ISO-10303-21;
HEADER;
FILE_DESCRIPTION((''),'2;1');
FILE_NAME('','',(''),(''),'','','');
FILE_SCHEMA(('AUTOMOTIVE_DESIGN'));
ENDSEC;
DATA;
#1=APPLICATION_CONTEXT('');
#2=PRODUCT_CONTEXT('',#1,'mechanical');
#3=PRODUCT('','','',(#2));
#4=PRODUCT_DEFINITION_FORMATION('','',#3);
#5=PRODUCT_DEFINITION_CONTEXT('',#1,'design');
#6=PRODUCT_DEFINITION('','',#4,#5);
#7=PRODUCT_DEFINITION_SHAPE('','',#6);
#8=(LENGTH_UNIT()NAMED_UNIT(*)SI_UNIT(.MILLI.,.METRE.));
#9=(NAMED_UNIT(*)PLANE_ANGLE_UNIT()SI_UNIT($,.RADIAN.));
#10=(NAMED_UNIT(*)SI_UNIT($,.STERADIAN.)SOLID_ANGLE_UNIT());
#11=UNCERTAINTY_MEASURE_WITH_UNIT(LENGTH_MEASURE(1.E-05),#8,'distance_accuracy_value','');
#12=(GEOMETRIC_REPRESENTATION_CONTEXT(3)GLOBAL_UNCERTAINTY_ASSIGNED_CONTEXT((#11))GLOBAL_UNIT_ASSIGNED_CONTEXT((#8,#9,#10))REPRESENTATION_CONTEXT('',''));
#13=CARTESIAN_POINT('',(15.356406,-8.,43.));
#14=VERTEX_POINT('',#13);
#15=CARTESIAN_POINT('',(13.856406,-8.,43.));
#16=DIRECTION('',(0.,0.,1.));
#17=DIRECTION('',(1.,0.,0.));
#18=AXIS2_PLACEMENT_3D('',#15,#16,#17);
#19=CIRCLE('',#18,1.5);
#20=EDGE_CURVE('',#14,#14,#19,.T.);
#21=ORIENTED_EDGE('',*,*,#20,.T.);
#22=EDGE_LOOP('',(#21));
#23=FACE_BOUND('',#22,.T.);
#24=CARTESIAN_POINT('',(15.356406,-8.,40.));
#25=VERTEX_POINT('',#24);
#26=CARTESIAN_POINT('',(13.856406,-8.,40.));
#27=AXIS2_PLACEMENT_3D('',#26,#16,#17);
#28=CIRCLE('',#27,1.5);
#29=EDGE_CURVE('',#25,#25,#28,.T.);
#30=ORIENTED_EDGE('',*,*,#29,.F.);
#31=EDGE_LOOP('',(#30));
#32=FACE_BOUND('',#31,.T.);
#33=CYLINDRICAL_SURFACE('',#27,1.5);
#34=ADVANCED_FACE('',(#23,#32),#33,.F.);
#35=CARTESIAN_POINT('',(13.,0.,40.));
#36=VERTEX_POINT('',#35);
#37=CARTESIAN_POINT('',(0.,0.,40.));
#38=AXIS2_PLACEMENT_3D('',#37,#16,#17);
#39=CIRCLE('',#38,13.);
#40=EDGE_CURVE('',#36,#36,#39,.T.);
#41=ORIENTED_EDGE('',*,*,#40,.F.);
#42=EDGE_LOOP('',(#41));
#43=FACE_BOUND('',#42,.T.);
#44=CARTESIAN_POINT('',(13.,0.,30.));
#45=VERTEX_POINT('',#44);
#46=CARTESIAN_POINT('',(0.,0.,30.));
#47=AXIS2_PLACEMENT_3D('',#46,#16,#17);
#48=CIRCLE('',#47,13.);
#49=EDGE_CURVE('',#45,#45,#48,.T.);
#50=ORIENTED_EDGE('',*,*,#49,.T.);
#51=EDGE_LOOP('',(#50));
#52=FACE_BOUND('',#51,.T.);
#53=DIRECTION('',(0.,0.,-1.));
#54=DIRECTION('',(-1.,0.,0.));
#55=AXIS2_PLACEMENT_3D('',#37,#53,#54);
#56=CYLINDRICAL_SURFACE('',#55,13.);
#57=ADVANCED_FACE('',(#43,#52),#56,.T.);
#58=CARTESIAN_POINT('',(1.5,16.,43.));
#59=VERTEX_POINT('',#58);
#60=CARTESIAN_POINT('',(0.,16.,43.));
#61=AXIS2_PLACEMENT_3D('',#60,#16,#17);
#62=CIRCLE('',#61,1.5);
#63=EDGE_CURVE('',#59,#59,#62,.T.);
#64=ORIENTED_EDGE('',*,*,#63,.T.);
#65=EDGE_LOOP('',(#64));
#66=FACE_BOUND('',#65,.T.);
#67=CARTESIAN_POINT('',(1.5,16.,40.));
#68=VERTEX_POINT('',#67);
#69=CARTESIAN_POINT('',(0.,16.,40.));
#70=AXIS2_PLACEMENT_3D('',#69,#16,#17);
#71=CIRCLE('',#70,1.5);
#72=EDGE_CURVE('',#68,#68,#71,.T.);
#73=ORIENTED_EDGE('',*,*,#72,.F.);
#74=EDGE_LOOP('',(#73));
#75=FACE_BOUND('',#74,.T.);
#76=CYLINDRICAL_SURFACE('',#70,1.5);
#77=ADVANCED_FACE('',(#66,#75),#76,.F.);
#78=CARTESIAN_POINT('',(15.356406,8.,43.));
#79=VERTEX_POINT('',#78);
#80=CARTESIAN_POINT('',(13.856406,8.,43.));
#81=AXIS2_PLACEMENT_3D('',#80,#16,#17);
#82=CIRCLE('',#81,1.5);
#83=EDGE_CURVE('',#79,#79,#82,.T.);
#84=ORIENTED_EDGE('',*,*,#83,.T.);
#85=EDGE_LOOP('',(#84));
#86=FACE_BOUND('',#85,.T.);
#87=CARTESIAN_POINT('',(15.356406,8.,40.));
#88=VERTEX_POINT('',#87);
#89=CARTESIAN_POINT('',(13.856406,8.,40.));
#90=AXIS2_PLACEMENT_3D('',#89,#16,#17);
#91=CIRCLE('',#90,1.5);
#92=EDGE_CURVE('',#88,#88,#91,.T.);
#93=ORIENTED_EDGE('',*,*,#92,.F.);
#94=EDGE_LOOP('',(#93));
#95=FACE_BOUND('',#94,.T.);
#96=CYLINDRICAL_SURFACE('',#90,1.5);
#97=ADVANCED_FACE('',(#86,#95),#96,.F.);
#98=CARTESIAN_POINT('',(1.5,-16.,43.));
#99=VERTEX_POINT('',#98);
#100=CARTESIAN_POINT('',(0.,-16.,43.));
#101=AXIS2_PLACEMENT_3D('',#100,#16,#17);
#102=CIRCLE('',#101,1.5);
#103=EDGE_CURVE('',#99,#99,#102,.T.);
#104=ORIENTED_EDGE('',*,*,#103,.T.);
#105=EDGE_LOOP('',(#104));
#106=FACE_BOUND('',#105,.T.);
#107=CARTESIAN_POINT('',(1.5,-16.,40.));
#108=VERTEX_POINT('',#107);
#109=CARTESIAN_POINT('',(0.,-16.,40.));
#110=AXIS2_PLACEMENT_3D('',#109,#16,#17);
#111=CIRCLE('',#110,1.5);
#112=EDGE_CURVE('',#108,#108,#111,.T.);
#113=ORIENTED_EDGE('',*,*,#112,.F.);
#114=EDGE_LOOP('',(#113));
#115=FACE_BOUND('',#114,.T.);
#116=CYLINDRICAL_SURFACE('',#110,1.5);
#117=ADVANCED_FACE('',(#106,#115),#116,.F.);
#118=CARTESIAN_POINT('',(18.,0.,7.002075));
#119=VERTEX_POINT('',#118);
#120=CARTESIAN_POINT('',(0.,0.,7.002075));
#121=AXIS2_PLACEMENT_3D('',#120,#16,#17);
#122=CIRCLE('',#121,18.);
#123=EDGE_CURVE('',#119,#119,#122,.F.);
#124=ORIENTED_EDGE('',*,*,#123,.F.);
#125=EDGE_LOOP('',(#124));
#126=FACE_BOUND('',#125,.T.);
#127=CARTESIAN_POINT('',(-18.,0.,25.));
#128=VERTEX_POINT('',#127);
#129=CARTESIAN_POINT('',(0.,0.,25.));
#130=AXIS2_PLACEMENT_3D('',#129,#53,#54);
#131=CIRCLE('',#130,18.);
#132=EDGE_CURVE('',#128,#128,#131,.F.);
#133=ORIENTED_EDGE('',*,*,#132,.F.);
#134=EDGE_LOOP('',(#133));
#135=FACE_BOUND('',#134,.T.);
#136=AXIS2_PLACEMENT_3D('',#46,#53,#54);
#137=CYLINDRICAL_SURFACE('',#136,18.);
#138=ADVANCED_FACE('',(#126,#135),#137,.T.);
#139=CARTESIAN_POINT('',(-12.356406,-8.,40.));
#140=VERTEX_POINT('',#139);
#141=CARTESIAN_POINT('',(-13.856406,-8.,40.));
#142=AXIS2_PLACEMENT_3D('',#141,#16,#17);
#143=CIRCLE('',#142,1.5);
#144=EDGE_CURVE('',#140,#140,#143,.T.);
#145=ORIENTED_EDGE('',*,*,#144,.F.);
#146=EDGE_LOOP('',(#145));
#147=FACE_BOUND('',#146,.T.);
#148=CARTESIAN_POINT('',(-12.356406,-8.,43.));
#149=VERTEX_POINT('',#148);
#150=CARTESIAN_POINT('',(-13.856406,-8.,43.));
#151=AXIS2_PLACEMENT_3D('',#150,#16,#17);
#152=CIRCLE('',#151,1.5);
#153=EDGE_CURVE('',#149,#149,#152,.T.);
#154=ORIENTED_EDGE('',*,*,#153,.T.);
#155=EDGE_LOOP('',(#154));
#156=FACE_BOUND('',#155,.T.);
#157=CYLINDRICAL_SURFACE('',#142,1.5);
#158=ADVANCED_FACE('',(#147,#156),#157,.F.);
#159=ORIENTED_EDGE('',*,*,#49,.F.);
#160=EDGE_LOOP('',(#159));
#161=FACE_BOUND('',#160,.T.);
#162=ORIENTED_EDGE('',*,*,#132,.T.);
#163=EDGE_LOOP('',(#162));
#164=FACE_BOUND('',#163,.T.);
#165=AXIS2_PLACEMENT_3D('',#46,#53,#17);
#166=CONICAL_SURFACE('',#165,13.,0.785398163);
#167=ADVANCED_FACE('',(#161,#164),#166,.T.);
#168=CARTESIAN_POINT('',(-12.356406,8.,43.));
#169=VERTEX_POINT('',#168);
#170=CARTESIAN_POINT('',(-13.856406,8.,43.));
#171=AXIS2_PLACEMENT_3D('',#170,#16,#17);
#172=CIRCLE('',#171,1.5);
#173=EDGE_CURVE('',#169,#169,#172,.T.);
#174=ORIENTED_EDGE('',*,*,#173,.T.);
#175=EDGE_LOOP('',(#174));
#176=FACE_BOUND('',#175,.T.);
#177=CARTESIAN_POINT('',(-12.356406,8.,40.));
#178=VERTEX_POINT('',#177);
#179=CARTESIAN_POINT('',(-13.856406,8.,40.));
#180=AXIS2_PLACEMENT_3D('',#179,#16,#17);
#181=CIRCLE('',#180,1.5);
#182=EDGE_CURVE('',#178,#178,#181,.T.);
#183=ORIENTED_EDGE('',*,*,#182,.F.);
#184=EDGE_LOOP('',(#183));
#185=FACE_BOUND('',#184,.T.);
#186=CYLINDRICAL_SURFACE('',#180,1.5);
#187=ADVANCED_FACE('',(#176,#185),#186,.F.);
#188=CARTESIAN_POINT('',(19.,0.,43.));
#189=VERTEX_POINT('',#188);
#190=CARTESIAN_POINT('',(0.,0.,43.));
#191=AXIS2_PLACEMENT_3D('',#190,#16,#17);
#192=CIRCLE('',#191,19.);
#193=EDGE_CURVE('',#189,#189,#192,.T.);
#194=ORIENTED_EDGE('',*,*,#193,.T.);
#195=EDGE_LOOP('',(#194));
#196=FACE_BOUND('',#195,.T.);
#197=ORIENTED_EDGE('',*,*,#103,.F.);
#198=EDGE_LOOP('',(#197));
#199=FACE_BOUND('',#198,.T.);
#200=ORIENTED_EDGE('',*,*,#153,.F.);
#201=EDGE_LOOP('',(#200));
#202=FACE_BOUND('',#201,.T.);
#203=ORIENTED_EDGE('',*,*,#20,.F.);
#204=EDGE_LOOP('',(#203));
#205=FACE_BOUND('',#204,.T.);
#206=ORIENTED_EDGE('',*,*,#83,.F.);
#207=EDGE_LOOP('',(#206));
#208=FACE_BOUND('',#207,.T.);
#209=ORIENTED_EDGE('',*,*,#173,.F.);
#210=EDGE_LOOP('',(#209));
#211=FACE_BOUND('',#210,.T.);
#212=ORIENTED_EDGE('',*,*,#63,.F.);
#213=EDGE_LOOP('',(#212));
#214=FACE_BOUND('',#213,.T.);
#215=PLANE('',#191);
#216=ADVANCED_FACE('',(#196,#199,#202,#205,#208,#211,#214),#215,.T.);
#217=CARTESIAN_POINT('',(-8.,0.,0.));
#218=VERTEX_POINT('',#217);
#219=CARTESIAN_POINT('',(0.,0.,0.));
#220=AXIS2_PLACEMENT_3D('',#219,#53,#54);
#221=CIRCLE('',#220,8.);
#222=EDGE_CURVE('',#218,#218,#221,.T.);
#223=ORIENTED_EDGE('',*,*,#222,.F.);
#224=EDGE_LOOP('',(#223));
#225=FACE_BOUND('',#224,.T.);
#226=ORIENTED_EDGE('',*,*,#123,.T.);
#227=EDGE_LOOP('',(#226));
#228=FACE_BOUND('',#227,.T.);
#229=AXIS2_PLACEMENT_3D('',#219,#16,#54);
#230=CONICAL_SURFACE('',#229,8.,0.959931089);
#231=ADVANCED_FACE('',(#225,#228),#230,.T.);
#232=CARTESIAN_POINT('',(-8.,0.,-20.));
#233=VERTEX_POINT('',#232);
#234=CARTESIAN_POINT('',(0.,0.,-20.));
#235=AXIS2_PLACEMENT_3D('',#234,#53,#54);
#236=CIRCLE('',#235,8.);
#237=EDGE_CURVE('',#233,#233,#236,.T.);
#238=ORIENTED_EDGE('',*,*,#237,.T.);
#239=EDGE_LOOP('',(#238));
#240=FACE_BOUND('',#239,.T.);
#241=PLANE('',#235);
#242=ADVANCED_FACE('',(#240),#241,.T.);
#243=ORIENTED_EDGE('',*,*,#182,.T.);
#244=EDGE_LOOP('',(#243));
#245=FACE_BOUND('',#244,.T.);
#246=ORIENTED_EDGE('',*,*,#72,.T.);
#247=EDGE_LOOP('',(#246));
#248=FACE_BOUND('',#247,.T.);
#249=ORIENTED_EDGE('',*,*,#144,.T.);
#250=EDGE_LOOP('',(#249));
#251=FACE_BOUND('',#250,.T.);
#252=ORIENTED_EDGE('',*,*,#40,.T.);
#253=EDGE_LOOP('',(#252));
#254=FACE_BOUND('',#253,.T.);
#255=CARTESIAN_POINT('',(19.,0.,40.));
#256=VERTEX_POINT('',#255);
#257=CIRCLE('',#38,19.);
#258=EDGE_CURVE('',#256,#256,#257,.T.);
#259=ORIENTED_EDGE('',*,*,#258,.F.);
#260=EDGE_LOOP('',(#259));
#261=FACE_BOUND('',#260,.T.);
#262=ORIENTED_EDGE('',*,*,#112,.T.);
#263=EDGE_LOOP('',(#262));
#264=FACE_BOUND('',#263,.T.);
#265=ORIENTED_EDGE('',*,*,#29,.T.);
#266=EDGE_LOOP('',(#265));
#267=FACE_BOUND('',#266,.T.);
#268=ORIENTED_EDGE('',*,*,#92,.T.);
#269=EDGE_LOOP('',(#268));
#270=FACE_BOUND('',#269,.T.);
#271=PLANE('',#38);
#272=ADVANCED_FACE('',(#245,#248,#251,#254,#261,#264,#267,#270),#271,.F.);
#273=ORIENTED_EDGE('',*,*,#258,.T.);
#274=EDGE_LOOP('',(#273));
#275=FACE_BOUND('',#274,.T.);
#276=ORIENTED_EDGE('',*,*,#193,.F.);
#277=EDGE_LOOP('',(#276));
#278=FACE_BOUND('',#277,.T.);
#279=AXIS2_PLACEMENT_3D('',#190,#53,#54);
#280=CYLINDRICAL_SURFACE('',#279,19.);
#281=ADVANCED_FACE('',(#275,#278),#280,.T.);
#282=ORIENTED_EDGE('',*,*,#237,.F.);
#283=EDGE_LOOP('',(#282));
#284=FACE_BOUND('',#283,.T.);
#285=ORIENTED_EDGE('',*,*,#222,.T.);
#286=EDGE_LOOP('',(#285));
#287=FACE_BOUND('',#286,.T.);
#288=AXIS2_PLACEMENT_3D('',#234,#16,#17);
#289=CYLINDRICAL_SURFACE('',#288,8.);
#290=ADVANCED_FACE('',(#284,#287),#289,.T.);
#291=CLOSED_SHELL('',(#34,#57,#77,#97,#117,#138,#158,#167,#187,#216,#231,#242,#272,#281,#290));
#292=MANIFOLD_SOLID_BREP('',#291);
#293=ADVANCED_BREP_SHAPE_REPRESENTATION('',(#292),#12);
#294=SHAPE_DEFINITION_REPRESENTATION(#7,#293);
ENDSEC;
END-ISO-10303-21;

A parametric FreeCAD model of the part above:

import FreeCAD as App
import Part
import Sketcher
from FreeCAD import Vector


def faces_at(feature, points):
    """Names of the faces that lie closest to the given points."""
    faces = feature.Shape.Faces
    near = lambda p: min(range(len(faces)), key=lambda i: faces[i].distToShape(Part.Vertex(*p))[0])
    return sorted({f"Face{near(p) + 1}" for p in points})

doc = App.newDocument("Part")
body = doc.addObject("PartDesign::Body", "Body")

# Sketch on XY plane
sketch1 = body.newObject("Sketcher::SketchObject", "Sketch")
sketch1.AttachmentSupport = (doc.getObject("XY_Plane"), [""])
sketch1.MapMode = "FlatFace"
sketch1.addGeometry(Part.Circle(Vector(0, 0, 0), Vector(0, 0, 1), 18), False)
sketch1.addConstraint([
    Sketcher.Constraint("Coincident", 0, 3, -1, 1),
    Sketcher.Constraint("Diameter", 0, 36.0),
])
pad1 = body.newObject("PartDesign::Pad", "Pad")
pad1.Profile = sketch1
pad1.Length = 30

# Sketch on XY plane
sketch2 = body.newObject("Sketcher::SketchObject", "Sketch001")
sketch2.AttachmentSupport = (doc.getObject("XY_Plane"), [""])
sketch2.MapMode = "FlatFace"
sketch2.AttachmentOffset = App.Placement(Vector(0, 0, 30), App.Rotation())
sketch2.addGeometry(Part.Circle(Vector(0, 0, 0), Vector(0, 0, 1), 13), False)
sketch2.addConstraint([
    Sketcher.Constraint("Coincident", 0, 3, -1, 1),
    Sketcher.Constraint("Diameter", 0, 26.0),
])
pad2 = body.newObject("PartDesign::Pad", "Pad001")
pad2.Profile = sketch2
pad2.Length = 10

# Sketch on XY plane
sketch3 = body.newObject("Sketcher::SketchObject", "Sketch002")
sketch3.AttachmentSupport = (doc.getObject("XY_Plane"), [""])
sketch3.MapMode = "FlatFace"
sketch3.addGeometry(Part.Circle(Vector(0, 0, 0), Vector(0, 0, 1), 8), False)
sketch3.addConstraint([
    Sketcher.Constraint("Coincident", 0, 3, -1, 1),
    Sketcher.Constraint("Diameter", 0, 16.0),
])
pad3 = body.newObject("PartDesign::Pad", "Pad002")
pad3.Profile = sketch3
pad3.Length = 20
pad3.Reversed = True
body2 = doc.addObject("PartDesign::Body", "Body001")

# Sketch on XY plane
sketch4 = body2.newObject("Sketcher::SketchObject", "Sketch003")
sketch4.AttachmentSupport = (doc.getObject("XY_Plane001"), [""])
sketch4.MapMode = "FlatFace"
sketch4.AttachmentOffset = App.Placement(Vector(0, 0, 30), App.Rotation())
sketch4.addGeometry([
    Part.LineSegment(Vector(-34.869, 34.869, 0), Vector(-34.869, -34.869, 0)),  # 0
    Part.LineSegment(Vector(-34.869, -34.869, 0), Vector(34.869, -34.869, 0)),  # 1
    Part.LineSegment(Vector(34.869, -34.869, 0), Vector(34.869, 34.869, 0)),  # 2
    Part.LineSegment(Vector(34.869, 34.869, 0), Vector(-34.869, 34.869, 0)),  # 3
    Part.Circle(Vector(0, 0, 0), Vector(0, 0, 1), 13),  # 4
], False)
sketch4.addConstraint([
    Sketcher.Constraint("Coincident", 0, 2, 1, 1),
    Sketcher.Constraint("Coincident", 1, 2, 2, 1),
    Sketcher.Constraint("Coincident", 2, 2, 3, 1),
    Sketcher.Constraint("Coincident", 3, 2, 0, 1),
    Sketcher.Constraint("Vertical", 0),
    Sketcher.Constraint("Horizontal", 1),
    Sketcher.Constraint("Vertical", 2),
    Sketcher.Constraint("Horizontal", 3),
    Sketcher.Constraint("Coincident", 4, 3, -1, 1),
    Sketcher.Constraint("Symmetric", 0, 2, 2, 2, -1, 1),
    Sketcher.Constraint("Equal", 3, 0),
    Sketcher.Constraint("Diameter", 4, 26.0),
    Sketcher.Constraint("DistanceX", 1, 1, 1, 2, 69.738),
])
pad4 = body2.newObject("PartDesign::Pad", "Pad003")
pad4.Profile = sketch4
pad4.Length = 8
pad4.Reversed = True
doc.recompute()

datumplane = body2.newObject("PartDesign::Plane", "DatumPlane")
datumplane.AttachmentSupport = (doc.getObject("XY_Plane001"), [""])
datumplane.MapMode = "FlatFace"
datumplane.AttachmentOffset = App.Placement(Vector(0, 0, 30), App.Rotation())
draft = body2.newObject("PartDesign::Draft", "Draft")
draft.Base = (pad4, faces_at(pad4, [
    (0, -34.869, 26),
    (34.869, 0, 26),
    (0, 34.869, 26),
    (-34.869, 0, 26),
    (-13, 0, 26),
]))
draft.NeutralPlane = (datumplane, [""])
draft.Angle = 45
draft.Reversed = True
doc.recompute()

boolean = body.newObject("PartDesign::Boolean", "Boolean")
boolean.Type = "Cut"
boolean.addObjects([body2])
body3 = doc.addObject("PartDesign::Body", "Body002")

# Sketch on XY plane
sketch5 = body3.newObject("Sketcher::SketchObject", "Sketch004")
sketch5.AttachmentSupport = (doc.getObject("XY_Plane002"), [""])
sketch5.MapMode = "FlatFace"
sketch5.addGeometry([
    Part.LineSegment(Vector(38.294, 38.294, 0), Vector(38.294, -38.294, 0)),  # 0
    Part.LineSegment(Vector(38.294, -38.294, 0), Vector(-38.294, -38.294, 0)),  # 1
    Part.LineSegment(Vector(-38.294, -38.294, 0), Vector(-38.294, 38.294, 0)),  # 2
    Part.LineSegment(Vector(-38.294, 38.294, 0), Vector(38.294, 38.294, 0)),  # 3
    Part.Circle(Vector(0, 0, 0), Vector(0, 0, 1), 8),  # 4
], False)
sketch5.addConstraint([
    Sketcher.Constraint("Coincident", 0, 2, 1, 1),
    Sketcher.Constraint("Coincident", 1, 2, 2, 1),
    Sketcher.Constraint("Coincident", 2, 2, 3, 1),
    Sketcher.Constraint("Coincident", 3, 2, 0, 1),
    Sketcher.Constraint("Vertical", 0),
    Sketcher.Constraint("Horizontal", 1),
    Sketcher.Constraint("Vertical", 2),
    Sketcher.Constraint("Horizontal", 3),
    Sketcher.Constraint("Coincident", 4, 3, -1, 1),
    Sketcher.Constraint("Symmetric", 0, 2, 2, 2, -1, 1),
    Sketcher.Constraint("Equal", 3, 0),
    Sketcher.Constraint("Diameter", 4, 16.0),
    Sketcher.Constraint("DistanceX", 1, 2, 1, 1, 76.588),
])
pad5 = body3.newObject("PartDesign::Pad", "Pad004")
pad5.Profile = sketch5
pad5.Length = 8
doc.recompute()

draft2 = body3.newObject("PartDesign::Draft", "Draft001")
draft2.Base = (pad5, faces_at(pad5, [
    (0, -38.294, 4),
    (-38.294, 0, 4),
    (0, 38.294, 4),
    (38.294, 0, 4),
    (8, 0, 4),
]))
draft2.NeutralPlane = (doc.getObject("XY_Plane002"), [""])
draft2.Angle = 55
draft2.Reversed = False
doc.recompute()

boolean2 = body.newObject("PartDesign::Boolean", "Boolean001")
boolean2.Type = "Cut"
boolean2.addObjects([body3])

# Sketch on XY plane
sketch6 = body.newObject("Sketcher::SketchObject", "Sketch005")
sketch6.AttachmentSupport = (doc.getObject("XY_Plane"), [""])
sketch6.MapMode = "FlatFace"
sketch6.AttachmentOffset = App.Placement(Vector(0, 0, 40), App.Rotation())
sketch6.addGeometry(Part.Circle(Vector(0, 0, 0), Vector(0, 0, 1), 19), False)
sketch6.addConstraint([
    Sketcher.Constraint("Coincident", 0, 3, -1, 1),
    Sketcher.Constraint("Diameter", 0, 38.0),
])
pad6 = body.newObject("PartDesign::Pad", "Pad005")
pad6.Profile = sketch6
pad6.Length = 3

# Sketch on XY plane
sketch7 = body.newObject("Sketcher::SketchObject", "Sketch006")
sketch7.AttachmentSupport = (doc.getObject("XY_Plane"), [""])
sketch7.MapMode = "FlatFace"
sketch7.AttachmentOffset = App.Placement(Vector(0, 0, 43), App.Rotation())
sketch7.addGeometry([
    Part.Circle(Vector(0, 16, 0), Vector(0, 0, 1), 1.5),  # 0
    Part.Circle(Vector(13.856406, 8, 0), Vector(0, 0, 1), 1.5),  # 1
    Part.Circle(Vector(13.856406, -8, 0), Vector(0, 0, 1), 1.5),  # 2
    Part.Circle(Vector(0, -16, 0), Vector(0, 0, 1), 1.5),  # 3
    Part.Circle(Vector(-13.856406, -8, 0), Vector(0, 0, 1), 1.5),  # 4
    Part.Circle(Vector(-13.856406, 8, 0), Vector(0, 0, 1), 1.5),  # 5
], False)
sketch7.addConstraint([
    Sketcher.Constraint("Equal", 0, 1),
    Sketcher.Constraint("Equal", 1, 2),
    Sketcher.Constraint("Equal", 2, 3),
    Sketcher.Constraint("Equal", 3, 4),
    Sketcher.Constraint("Equal", 4, 5),
    Sketcher.Constraint("Symmetric", 0, 3, 3, 3, -1, 1),
    Sketcher.Constraint("Symmetric", 1, 3, 4, 3, -1, 1),
    Sketcher.Constraint("Symmetric", 2, 3, 5, 3, -1, 1),
    Sketcher.Constraint("Symmetric", 2, 3, 4, 3, -2),
    Sketcher.Constraint("PointOnObject", 0, 3, -2),
    Sketcher.Constraint("Diameter", 0, 3.0),
    Sketcher.Constraint("DistanceY", -1, 1, 0, 3, 16.0),
    Sketcher.Constraint("DistanceY", -1, 1, 1, 3, 8.0),
    Sketcher.Constraint("DistanceX", -1, 1, 1, 3, 13.856406),
])
pocket1 = body.newObject("PartDesign::Pocket", "Pocket")
pocket1.Profile = sketch7
pocket1.Length = 3

doc.recompute()
